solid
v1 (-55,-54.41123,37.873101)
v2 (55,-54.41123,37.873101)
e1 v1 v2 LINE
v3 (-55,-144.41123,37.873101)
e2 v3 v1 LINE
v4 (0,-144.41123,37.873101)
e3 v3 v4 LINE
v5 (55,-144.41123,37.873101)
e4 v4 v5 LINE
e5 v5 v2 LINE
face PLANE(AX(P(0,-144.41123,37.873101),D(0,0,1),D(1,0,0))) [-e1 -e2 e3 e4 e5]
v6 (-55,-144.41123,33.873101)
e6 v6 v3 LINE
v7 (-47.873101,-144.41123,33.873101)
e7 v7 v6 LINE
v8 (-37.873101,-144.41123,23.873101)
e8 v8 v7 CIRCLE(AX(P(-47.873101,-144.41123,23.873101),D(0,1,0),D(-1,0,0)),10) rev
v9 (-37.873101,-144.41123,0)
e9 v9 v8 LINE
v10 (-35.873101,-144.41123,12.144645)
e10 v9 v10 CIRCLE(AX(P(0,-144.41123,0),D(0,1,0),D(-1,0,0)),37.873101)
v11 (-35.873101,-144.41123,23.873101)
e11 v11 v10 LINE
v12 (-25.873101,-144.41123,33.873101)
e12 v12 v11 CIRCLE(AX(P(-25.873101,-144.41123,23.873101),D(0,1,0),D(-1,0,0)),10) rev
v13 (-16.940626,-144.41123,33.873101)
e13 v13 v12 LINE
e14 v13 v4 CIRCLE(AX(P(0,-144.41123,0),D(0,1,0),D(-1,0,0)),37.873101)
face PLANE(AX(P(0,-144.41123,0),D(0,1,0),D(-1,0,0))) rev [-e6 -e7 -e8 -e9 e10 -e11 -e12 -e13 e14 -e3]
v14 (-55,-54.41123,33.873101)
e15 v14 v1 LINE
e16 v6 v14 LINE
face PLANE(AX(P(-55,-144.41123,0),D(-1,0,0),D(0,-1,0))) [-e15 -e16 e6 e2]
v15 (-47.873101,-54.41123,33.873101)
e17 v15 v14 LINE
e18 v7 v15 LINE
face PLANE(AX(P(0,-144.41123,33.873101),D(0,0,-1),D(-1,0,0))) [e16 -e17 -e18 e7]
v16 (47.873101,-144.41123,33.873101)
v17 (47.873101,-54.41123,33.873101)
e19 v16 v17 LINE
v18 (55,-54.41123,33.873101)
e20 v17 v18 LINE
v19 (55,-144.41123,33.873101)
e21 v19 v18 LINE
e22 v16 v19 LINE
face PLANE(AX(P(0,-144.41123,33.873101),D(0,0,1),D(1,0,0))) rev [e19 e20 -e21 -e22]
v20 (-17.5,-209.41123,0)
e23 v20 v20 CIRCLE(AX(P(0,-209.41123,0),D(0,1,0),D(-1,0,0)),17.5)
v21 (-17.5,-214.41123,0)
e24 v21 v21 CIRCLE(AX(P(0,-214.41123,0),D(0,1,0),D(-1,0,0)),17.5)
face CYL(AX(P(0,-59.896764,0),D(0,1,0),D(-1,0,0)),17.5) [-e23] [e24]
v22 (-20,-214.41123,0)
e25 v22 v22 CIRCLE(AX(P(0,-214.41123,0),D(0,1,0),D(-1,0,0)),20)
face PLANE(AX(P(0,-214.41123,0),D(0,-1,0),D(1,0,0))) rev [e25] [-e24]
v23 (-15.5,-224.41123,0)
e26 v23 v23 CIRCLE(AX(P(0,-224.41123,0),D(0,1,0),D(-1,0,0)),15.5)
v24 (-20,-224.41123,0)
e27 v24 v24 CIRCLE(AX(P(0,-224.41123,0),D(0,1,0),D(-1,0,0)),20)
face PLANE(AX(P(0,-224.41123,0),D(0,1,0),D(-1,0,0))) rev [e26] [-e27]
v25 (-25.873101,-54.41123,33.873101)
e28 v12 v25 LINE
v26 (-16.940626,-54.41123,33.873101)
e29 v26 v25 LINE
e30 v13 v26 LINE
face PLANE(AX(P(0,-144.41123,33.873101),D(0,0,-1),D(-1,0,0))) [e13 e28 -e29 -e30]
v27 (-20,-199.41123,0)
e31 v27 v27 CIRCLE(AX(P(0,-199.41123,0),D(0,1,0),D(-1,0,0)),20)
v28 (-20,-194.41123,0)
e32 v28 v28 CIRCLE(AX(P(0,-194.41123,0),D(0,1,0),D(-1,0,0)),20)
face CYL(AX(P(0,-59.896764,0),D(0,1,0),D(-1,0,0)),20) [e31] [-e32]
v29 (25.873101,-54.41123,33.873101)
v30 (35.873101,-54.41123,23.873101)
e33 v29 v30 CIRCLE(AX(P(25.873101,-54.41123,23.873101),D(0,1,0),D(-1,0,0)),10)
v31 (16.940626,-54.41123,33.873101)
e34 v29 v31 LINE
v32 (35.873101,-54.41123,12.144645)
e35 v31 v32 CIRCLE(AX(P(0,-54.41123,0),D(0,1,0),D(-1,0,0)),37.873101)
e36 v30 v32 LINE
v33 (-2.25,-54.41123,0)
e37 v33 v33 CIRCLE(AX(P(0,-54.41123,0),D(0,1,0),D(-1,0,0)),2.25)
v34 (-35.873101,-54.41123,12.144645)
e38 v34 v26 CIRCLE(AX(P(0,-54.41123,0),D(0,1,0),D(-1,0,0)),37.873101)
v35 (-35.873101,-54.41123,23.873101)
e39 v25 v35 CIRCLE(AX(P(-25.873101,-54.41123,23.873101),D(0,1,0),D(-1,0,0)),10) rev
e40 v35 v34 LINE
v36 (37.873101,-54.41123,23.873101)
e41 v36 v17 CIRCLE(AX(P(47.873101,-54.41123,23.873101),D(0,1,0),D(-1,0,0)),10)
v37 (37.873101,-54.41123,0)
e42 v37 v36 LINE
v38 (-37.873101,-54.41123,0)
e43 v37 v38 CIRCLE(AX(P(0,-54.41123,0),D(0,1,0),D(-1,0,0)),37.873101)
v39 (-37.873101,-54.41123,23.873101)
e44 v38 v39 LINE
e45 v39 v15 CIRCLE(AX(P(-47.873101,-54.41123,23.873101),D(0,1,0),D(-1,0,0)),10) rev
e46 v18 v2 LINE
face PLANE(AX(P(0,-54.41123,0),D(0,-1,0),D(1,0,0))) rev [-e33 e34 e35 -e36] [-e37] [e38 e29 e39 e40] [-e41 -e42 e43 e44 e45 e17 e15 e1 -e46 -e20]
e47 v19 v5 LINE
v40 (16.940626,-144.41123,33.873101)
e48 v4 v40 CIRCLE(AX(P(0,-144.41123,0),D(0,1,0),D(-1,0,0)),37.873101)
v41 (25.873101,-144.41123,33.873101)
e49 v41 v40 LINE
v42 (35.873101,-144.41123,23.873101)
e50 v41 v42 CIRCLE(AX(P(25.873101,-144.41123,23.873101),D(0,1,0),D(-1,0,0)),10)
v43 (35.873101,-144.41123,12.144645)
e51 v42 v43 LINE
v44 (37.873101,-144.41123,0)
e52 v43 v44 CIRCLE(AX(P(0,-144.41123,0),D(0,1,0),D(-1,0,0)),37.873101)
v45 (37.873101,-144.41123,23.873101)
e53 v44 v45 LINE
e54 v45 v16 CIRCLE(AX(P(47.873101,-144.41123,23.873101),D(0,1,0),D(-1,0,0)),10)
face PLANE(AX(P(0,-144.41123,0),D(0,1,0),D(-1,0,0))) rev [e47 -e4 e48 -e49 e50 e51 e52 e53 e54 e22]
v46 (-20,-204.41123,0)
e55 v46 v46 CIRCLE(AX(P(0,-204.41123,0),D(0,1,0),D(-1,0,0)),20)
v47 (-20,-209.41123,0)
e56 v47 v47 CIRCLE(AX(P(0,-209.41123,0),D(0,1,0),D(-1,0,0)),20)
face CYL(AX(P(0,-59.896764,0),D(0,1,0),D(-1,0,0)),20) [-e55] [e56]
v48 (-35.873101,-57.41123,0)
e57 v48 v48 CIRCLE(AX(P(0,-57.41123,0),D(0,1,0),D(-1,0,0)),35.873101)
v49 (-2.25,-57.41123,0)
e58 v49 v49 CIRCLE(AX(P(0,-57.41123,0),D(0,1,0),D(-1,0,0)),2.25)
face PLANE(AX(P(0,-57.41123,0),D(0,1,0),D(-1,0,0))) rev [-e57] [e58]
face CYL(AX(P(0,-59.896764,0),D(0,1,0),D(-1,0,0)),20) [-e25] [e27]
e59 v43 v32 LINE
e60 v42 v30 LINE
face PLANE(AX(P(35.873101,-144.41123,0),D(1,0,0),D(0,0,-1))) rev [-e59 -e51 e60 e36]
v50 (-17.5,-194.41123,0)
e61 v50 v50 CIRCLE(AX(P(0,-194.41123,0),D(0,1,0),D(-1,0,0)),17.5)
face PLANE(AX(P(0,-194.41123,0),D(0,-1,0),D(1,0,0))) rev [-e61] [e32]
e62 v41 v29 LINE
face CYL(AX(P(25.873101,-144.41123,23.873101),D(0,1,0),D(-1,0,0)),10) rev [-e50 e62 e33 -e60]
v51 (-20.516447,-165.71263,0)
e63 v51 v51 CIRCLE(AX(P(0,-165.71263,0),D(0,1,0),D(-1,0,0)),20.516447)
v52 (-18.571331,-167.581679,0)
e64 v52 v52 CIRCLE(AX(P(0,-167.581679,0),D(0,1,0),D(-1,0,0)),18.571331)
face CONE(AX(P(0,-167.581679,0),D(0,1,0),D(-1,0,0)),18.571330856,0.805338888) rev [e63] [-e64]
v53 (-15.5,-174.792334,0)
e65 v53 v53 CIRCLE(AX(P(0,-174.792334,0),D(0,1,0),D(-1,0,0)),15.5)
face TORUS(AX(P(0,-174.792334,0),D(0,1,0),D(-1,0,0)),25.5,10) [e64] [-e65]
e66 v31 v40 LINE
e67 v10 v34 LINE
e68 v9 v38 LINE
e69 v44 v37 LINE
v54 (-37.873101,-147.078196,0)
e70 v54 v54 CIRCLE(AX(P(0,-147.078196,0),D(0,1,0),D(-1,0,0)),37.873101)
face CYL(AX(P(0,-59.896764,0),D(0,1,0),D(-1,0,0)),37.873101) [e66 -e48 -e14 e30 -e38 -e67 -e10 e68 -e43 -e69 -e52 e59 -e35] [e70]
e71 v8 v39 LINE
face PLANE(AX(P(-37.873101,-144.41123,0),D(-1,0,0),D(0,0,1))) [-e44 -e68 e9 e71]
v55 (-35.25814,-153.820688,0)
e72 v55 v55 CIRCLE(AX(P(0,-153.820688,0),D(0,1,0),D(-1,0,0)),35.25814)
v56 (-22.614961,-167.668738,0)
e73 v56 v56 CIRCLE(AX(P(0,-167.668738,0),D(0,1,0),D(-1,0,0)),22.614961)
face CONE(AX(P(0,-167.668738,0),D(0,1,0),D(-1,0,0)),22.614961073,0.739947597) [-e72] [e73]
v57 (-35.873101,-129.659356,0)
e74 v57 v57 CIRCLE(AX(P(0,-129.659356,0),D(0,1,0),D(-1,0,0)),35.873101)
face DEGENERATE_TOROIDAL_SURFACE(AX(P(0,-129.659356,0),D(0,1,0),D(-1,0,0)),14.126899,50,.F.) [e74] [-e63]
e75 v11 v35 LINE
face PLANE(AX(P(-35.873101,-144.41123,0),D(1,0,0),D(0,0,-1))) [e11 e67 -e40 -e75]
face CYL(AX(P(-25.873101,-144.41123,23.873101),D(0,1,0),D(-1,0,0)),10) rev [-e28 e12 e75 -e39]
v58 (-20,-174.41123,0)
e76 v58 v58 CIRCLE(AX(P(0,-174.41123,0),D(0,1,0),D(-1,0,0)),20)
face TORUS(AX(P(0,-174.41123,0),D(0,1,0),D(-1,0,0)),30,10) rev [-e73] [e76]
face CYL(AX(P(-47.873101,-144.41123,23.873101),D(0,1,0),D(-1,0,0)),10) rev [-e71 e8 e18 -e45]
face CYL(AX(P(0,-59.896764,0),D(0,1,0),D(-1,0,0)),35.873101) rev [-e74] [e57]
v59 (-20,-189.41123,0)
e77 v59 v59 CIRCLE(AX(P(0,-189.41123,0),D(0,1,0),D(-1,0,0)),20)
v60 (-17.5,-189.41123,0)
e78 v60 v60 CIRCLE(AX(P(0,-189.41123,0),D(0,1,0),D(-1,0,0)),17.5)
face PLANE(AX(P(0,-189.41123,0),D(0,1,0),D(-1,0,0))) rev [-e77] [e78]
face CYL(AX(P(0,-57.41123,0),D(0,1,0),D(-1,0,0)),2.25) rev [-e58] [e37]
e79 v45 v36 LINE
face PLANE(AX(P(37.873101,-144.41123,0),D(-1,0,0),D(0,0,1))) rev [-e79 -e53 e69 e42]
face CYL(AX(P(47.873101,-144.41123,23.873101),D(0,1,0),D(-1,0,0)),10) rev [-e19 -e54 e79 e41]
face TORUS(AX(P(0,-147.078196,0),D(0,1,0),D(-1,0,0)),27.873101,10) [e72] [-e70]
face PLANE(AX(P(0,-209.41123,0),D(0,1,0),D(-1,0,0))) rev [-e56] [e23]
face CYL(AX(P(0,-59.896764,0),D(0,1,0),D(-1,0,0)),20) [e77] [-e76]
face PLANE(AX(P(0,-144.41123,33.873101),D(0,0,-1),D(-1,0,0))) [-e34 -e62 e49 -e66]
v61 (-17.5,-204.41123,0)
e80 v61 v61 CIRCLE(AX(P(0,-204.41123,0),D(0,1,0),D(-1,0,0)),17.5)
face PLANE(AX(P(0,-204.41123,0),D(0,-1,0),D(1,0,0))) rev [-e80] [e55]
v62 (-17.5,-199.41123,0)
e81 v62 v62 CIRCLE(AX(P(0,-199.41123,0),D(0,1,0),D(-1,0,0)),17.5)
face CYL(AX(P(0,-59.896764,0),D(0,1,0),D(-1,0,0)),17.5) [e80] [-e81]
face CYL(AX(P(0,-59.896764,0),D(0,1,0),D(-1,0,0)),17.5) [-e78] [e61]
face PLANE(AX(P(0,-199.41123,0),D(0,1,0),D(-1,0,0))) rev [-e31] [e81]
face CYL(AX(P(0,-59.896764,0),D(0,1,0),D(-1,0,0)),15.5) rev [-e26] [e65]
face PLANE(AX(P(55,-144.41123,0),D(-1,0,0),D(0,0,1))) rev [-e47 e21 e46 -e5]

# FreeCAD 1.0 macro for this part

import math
import FreeCAD as App
import Part
import Sketcher

doc = App.newDocument("Part")
body = doc.addObject("PartDesign::Body", "Body")

# Sketch on XY plane
sketch1 = body.newObject("Sketcher::SketchObject", "Sketch")
sketch1.AttachmentSupport = (doc.getObject("XY_Plane"), [""])
sketch1.MapMode = "FlatFace"
sketch1.addGeometry([
    Part.LineSegment(App.Vector(20, -224.4, 0), App.Vector(20, -214.4, 0)),  # 0
    Part.LineSegment(App.Vector(20, -214.4, 0), App.Vector(17.5, -214.4, 0)),  # 1
    Part.LineSegment(App.Vector(17.5, -214.4, 0), App.Vector(17.5, -209.4, 0)),  # 2
    Part.LineSegment(App.Vector(17.5, -209.4, 0), App.Vector(20, -209.4, 0)),  # 3
    Part.LineSegment(App.Vector(20, -209.4, 0), App.Vector(20, -204.4, 0)),  # 4
    Part.LineSegment(App.Vector(20, -204.4, 0), App.Vector(17.5, -204.4, 0)),  # 5
    Part.LineSegment(App.Vector(17.5, -204.4, 0), App.Vector(17.5, -199.4, 0)),  # 6
    Part.LineSegment(App.Vector(17.5, -199.4, 0), App.Vector(20, -199.4, 0)),  # 7
    Part.LineSegment(App.Vector(20, -199.4, 0), App.Vector(20, -194.4, 0)),  # 8
    Part.LineSegment(App.Vector(20, -194.4, 0), App.Vector(17.5, -194.4, 0)),  # 9
    Part.LineSegment(App.Vector(17.5, -194.4, 0), App.Vector(17.5, -189.4, 0)),  # 10
    Part.LineSegment(App.Vector(17.5, -189.4, 0), App.Vector(20, -189.4, 0)),  # 11
    Part.LineSegment(App.Vector(20, -189.4, 0), App.Vector(20, -174.4, 0)),  # 12
    Part.ArcOfCircle(Part.Circle(App.Vector(30, -174.4, 0), App.Vector(0, 0, 1), 10), math.radians(138), math.radians(180)),  # 13
    Part.LineSegment(App.Vector(22.6, -167.7, 0), App.Vector(35.3, -153.8, 0)),  # 14
    Part.ArcOfCircle(Part.Circle(App.Vector(27.9, -147.1, 0), App.Vector(0, 0, 1), 10), math.radians(-42), math.radians(0)),  # 15
    Part.LineSegment(App.Vector(37.9, -147.1, 0), App.Vector(37.9, -54.4, 0)),  # 16
    Part.LineSegment(App.Vector(37.9, -54.4, 0), App.Vector(35.9, -54.4, 0)),  # 17
    Part.LineSegment(App.Vector(35.9, -54.4, 0), App.Vector(35.9, -129.7, 0)),  # 18
    Part.ArcOfCircle(Part.Circle(App.Vector(-14.1, -129.7, 0), App.Vector(0, 0, 1), 50), math.radians(-46), math.radians(0)),  # 19
    Part.LineSegment(App.Vector(20.5, -165.7, 0), App.Vector(18.6, -167.6, 0)),  # 20
    Part.ArcOfCircle(Part.Circle(App.Vector(25.5, -174.8, 0), App.Vector(0, 0, 1), 10), math.radians(134), math.radians(180)),  # 21
    Part.LineSegment(App.Vector(15.5, -174.8, 0), App.Vector(15.5, -224.4, 0)),  # 22
    Part.LineSegment(App.Vector(15.5, -224.4, 0), App.Vector(20, -224.4, 0)),  # 23
], False)
sketch1.addConstraint([
    Sketcher.Constraint("Coincident", 0, 2, 1, 1),
    Sketcher.Constraint("Coincident", 1, 2, 2, 1),
    Sketcher.Constraint("Coincident", 2, 2, 3, 1),
    Sketcher.Constraint("Coincident", 3, 2, 4, 1),
    Sketcher.Constraint("Coincident", 4, 2, 5, 1),
    Sketcher.Constraint("Coincident", 5, 2, 6, 1),
    Sketcher.Constraint("Coincident", 6, 2, 7, 1),
    Sketcher.Constraint("Coincident", 7, 2, 8, 1),
    Sketcher.Constraint("Coincident", 8, 2, 9, 1),
    Sketcher.Constraint("Coincident", 9, 2, 10, 1),
    Sketcher.Constraint("Coincident", 10, 2, 11, 1),
    Sketcher.Constraint("Coincident", 11, 2, 12, 1),
    Sketcher.Constraint("Tangent", 12, 2, 13, 2),
    Sketcher.Constraint("Tangent", 13, 1, 14, 1),
    Sketcher.Constraint("Tangent", 14, 2, 15, 1),
    Sketcher.Constraint("Tangent", 15, 2, 16, 1),
    Sketcher.Constraint("Coincident", 16, 2, 17, 1),
    Sketcher.Constraint("Coincident", 17, 2, 18, 1),
    Sketcher.Constraint("Tangent", 18, 2, 19, 2),
    Sketcher.Constraint("Tangent", 19, 1, 20, 1),
    Sketcher.Constraint("Tangent", 20, 2, 21, 1),
    Sketcher.Constraint("Tangent", 21, 2, 22, 1),
    Sketcher.Constraint("Coincident", 22, 2, 23, 1),
    Sketcher.Constraint("Coincident", 23, 2, 0, 1),
    Sketcher.Constraint("Vertical", 0),
    Sketcher.Constraint("Horizontal", 1),
    Sketcher.Constraint("Vertical", 2),
    Sketcher.Constraint("Horizontal", 3),
    Sketcher.Constraint("Vertical", 4),
    Sketcher.Constraint("Horizontal", 5),
    Sketcher.Constraint("Vertical", 6),
    Sketcher.Constraint("Horizontal", 7),
    Sketcher.Constraint("Vertical", 8),
    Sketcher.Constraint("Horizontal", 9),
    Sketcher.Constraint("Vertical", 10),
    Sketcher.Constraint("Horizontal", 11),
    Sketcher.Constraint("Vertical", 12),
    Sketcher.Constraint("Vertical", 16),
    Sketcher.Constraint("Horizontal", 17),
    Sketcher.Constraint("Vertical", 18),
    Sketcher.Constraint("Vertical", 22),
    Sketcher.Constraint("Horizontal", 23),
    Sketcher.Constraint("Equal", 13, 15),
    Sketcher.Constraint("Equal", 15, 21),
    Sketcher.Constraint("Vertical", 0, 2, 3, 2),
    Sketcher.Constraint("Vertical", 2, 2, 5, 2),
    Sketcher.Constraint("Vertical", 4, 2, 7, 2),
    Sketcher.Constraint("Vertical", 6, 2, 9, 2),
    Sketcher.Constraint("Vertical", 8, 2, 11, 2),
    Sketcher.Constraint("Equal", 2, 4),
    Sketcher.Constraint("Equal", 4, 6),
    Sketcher.Constraint("Equal", 6, 8),
    Sketcher.Constraint("Equal", 8, 10),
    Sketcher.Constraint("Radius", 13, 10.0),
    Sketcher.Constraint("Radius", 19, 50.0),
    Sketcher.Constraint("DistanceX", 17, 2, 17, 1, 2.0),
    Sketcher.Constraint("DistanceY", 0, 1, 0, 2, 10.0),
    Sketcher.Constraint("DistanceY", 2, 1, 2, 2, 5.0),
    Sketcher.Constraint("DistanceY", 12, 1, 12, 2, 15.0),
    Sketcher.Constraint("DistanceX", 1, 2, 1, 1, 2.5),
    Sketcher.Constraint("DistanceX", 23, 1, 23, 2, 4.5),
    Sketcher.Constraint("DistanceX", -1, 1, 13, 3, 30.0),
    Sketcher.Constraint("DistanceX", -1, 1, 15, 3, 27.873101),
    Sketcher.Constraint("DistanceY", 12, 2, 19, 1, 8.6986),
    Sketcher.Constraint("Distance", 20, 2.697558),
    Sketcher.Constraint("DistanceY", 16, 1, 16, 2, 92.666965),
    Sketcher.Constraint("DistanceY", 18, 2, 18, 1, 75.248126),
    Sketcher.Constraint("DistanceY", 13, 3, -1, 1, 174.41123),
])
revolution = body.newObject("PartDesign::Revolution", "Revolution")
revolution.Profile = sketch1
revolution.ReferenceAxis = (sketch1, ["V_Axis"])
revolution.Angle = 360

# Sketch on XZ plane
sketch2 = body.newObject("Sketcher::SketchObject", "Sketch001")
sketch2.AttachmentSupport = (doc.getObject("XZ_Plane"), [""])
sketch2.MapMode = "FlatFace"
sketch2.AttachmentOffset = App.Placement(App.Vector(0, 0, 54.41123), App.Rotation())
sketch2.addGeometry([
    Part.ArcOfCircle(Part.Circle(App.Vector(-25.9, 23.9, 0), App.Vector(0, 0, 1), 10), math.radians(90), math.radians(180)),  # 0
    Part.LineSegment(App.Vector(-35.9, 23.9, 0), App.Vector(-35.9, 12.1, 0)),  # 1
    Part.ArcOfCircle(Part.Circle(App.Vector(0, 0, 0), App.Vector(0, 0, 1), 37.9), math.radians(161.3), math.radians(180)),  # 2
    Part.LineSegment(App.Vector(-37.9, 0, 0), App.Vector(-37.9, 23.9, 0)),  # 3
    Part.ArcOfCircle(Part.Circle(App.Vector(-47.9, 23.9, 0), App.Vector(0, 0, 1), 10), math.radians(0), math.radians(90)),  # 4
    Part.LineSegment(App.Vector(-47.9, 33.9, 0), App.Vector(-55, 33.9, 0)),  # 5
    Part.LineSegment(App.Vector(-55, 33.9, 0), App.Vector(-55, 37.9, 0)),  # 6
    Part.LineSegment(App.Vector(-55, 37.9, 0), App.Vector(55, 37.9, 0)),  # 7
    Part.LineSegment(App.Vector(55, 37.9, 0), App.Vector(55, 33.9, 0)),  # 8
    Part.LineSegment(App.Vector(55, 33.9, 0), App.Vector(47.9, 33.9, 0)),  # 9
    Part.ArcOfCircle(Part.Circle(App.Vector(47.9, 23.9, 0), App.Vector(0, 0, 1), 10), math.radians(90), math.radians(180)),  # 10
    Part.LineSegment(App.Vector(37.9, 23.9, 0), App.Vector(37.9, 0, 0)),  # 11
    Part.ArcOfCircle(Part.Circle(App.Vector(0, 0, 0), App.Vector(0, 0, 1), 37.9), math.radians(0), math.radians(18.7)),  # 12
    Part.LineSegment(App.Vector(35.9, 12.1, 0), App.Vector(35.9, 23.9, 0)),  # 13
    Part.ArcOfCircle(Part.Circle(App.Vector(25.9, 23.9, 0), App.Vector(0, 0, 1), 10), math.radians(0), math.radians(90)),  # 14
    Part.LineSegment(App.Vector(25.9, 33.9, 0), App.Vector(11.8, 33.9, 0)),  # 15
    Part.ArcOfCircle(Part.Circle(App.Vector(0, 0, 0), App.Vector(0, 0, 1), 35.9), math.radians(70.78), math.radians(90)),  # 16
    Part.ArcOfCircle(Part.Circle(App.Vector(0, 0, 0), App.Vector(0, 0, 1), 35.9), math.radians(90), math.radians(109.22)),  # 17
    Part.LineSegment(App.Vector(-11.8, 33.9, 0), App.Vector(-25.9, 33.9, 0)),  # 18
], False)
sketch2.addConstraint([
    Sketcher.Constraint("Tangent", 0, 2, 1, 1),
    Sketcher.Constraint("Coincident", 1, 2, 2, 1),
    Sketcher.Constraint("Tangent", 2, 2, 3, 1),
    Sketcher.Constraint("Tangent", 3, 2, 4, 1),
    Sketcher.Constraint("Tangent", 4, 2, 5, 1),
    Sketcher.Constraint("Coincident", 5, 2, 6, 1),
    Sketcher.Constraint("Coincident", 6, 2, 7, 1),
    Sketcher.Constraint("Coincident", 7, 2, 8, 1),
    Sketcher.Constraint("Coincident", 8, 2, 9, 1),
    Sketcher.Constraint("Tangent", 9, 2, 10, 1),
    Sketcher.Constraint("Tangent", 10, 2, 11, 1),
    Sketcher.Constraint("Tangent", 11, 2, 12, 1),
    Sketcher.Constraint("Coincident", 12, 2, 13, 1),
    Sketcher.Constraint("Tangent", 13, 2, 14, 1),
    Sketcher.Constraint("Tangent", 14, 2, 15, 1),
    Sketcher.Constraint("Coincident", 15, 2, 16, 1),
    Sketcher.Constraint("Tangent", 16, 2, 17, 1),
    Sketcher.Constraint("Coincident", 17, 2, 18, 1),
    Sketcher.Constraint("Tangent", 18, 2, 0, 1),
    Sketcher.Constraint("Vertical", 1),
    Sketcher.Constraint("Vertical", 3),
    Sketcher.Constraint("Horizontal", 5),
    Sketcher.Constraint("Vertical", 6),
    Sketcher.Constraint("Horizontal", 7),
    Sketcher.Constraint("Vertical", 8),
    Sketcher.Constraint("Horizontal", 9),
    Sketcher.Constraint("Vertical", 11),
    Sketcher.Constraint("Vertical", 13),
    Sketcher.Constraint("Horizontal", 15),
    Sketcher.Constraint("Horizontal", 18),
    Sketcher.Constraint("Coincident", 2, 3, -1, 1),
    Sketcher.Constraint("Coincident", 12, 3, -1, 1),
    Sketcher.Constraint("Coincident", 16, 3, -1, 1),
    Sketcher.Constraint("Equal", 0, 4),
    Sketcher.Constraint("Equal", 4, 10),
    Sketcher.Constraint("Equal", 2, 12),
    Sketcher.Constraint("Equal", 10, 14),
    Sketcher.Constraint("Equal", 16, 17),
    Sketcher.Constraint("Symmetric", 0, 3, 14, 3, -2),
    Sketcher.Constraint("Symmetric", 5, 2, 8, 2, -2),
    Sketcher.Constraint("PointOnObject", 16, 2, -2),
    Sketcher.Constraint("Horizontal", 0, 3, 4, 3),
    Sketcher.Constraint("Radius", 0, 10.0),
    Sketcher.Constraint("DistanceX", 7, 1, 7, 2, 110.0),
    Sketcher.Constraint("DistanceY", 6, 1, 6, 2, 4.0),
    Sketcher.Constraint("DistanceX", 4, 3, 0, 3, 22.0),
    Sketcher.Constraint("DistanceY", 15, 2, 16, 2, 2.0),
    Sketcher.Constraint("Radius", 2, 37.873101),
    Sketcher.Constraint("Radius", 16, 35.873101),
])
pad1 = body.newObject("PartDesign::Pad", "Pad")
pad1.Profile = sketch2
pad1.Length = 90

# Sketch on XZ plane
sketch3 = body.newObject("Sketcher::SketchObject", "Sketch002")
sketch3.AttachmentSupport = (doc.getObject("XZ_Plane"), [""])
sketch3.MapMode = "FlatFace"
sketch3.AttachmentOffset = App.Placement(App.Vector(0, 0, 57.41123), App.Rotation())
sketch3.addGeometry([
    Part.ArcOfCircle(Part.Circle(App.Vector(0, 0, 0), App.Vector(0, 0, 1), 37.9), math.radians(0), math.radians(90)),  # 0
    Part.ArcOfCircle(Part.Circle(App.Vector(0, 0, 0), App.Vector(0, 0, 1), 37.9), math.radians(-90), math.radians(0)),  # 1
    Part.ArcOfCircle(Part.Circle(App.Vector(0, 0, 0), App.Vector(0, 0, 1), 37.9), math.radians(90), math.radians(270)),  # 2
    Part.ArcOfCircle(Part.Circle(App.Vector(0, 0, 0), App.Vector(0, 0, 1), 2.2), math.radians(90), math.radians(270)),  # 3
    Part.ArcOfCircle(Part.Circle(App.Vector(0, 0, 0), App.Vector(0, 0, 1), 2.2), math.radians(-90), math.radians(0)),  # 4
    Part.ArcOfCircle(Part.Circle(App.Vector(0, 0, 0), App.Vector(0, 0, 1), 2.2), math.radians(0), math.radians(90)),  # 5
], False)
sketch3.addConstraint([
    Sketcher.Constraint("Tangent", 0, 1, 1, 2),
    Sketcher.Constraint("Tangent", 1, 1, 2, 2),
    Sketcher.Constraint("Tangent", 2, 1, 0, 2),
    Sketcher.Constraint("Tangent", 3, 2, 4, 1),
    Sketcher.Constraint("Tangent", 4, 2, 5, 1),
    Sketcher.Constraint("Tangent", 5, 2, 3, 1),
    Sketcher.Constraint("Coincident", 0, 3, -1, 1),
    Sketcher.Constraint("Coincident", 3, 3, -1, 1),
    Sketcher.Constraint("PointOnObject", 0, 1, -1),
    Sketcher.Constraint("PointOnObject", 1, 1, -2),
    Sketcher.Constraint("PointOnObject", 2, 1, -2),
    Sketcher.Constraint("PointOnObject", 3, 2, -2),
    Sketcher.Constraint("PointOnObject", 4, 2, -1),
    Sketcher.Constraint("PointOnObject", 5, 2, -2),
    Sketcher.Constraint("Radius", 3, 2.25),
    Sketcher.Constraint("Radius", 0, 37.873101),
])
pad2 = body.newObject("PartDesign::Pad", "Pad001")
pad2.Profile = sketch3
pad2.Length = 3
pad2.Reversed = True

doc.recompute()
